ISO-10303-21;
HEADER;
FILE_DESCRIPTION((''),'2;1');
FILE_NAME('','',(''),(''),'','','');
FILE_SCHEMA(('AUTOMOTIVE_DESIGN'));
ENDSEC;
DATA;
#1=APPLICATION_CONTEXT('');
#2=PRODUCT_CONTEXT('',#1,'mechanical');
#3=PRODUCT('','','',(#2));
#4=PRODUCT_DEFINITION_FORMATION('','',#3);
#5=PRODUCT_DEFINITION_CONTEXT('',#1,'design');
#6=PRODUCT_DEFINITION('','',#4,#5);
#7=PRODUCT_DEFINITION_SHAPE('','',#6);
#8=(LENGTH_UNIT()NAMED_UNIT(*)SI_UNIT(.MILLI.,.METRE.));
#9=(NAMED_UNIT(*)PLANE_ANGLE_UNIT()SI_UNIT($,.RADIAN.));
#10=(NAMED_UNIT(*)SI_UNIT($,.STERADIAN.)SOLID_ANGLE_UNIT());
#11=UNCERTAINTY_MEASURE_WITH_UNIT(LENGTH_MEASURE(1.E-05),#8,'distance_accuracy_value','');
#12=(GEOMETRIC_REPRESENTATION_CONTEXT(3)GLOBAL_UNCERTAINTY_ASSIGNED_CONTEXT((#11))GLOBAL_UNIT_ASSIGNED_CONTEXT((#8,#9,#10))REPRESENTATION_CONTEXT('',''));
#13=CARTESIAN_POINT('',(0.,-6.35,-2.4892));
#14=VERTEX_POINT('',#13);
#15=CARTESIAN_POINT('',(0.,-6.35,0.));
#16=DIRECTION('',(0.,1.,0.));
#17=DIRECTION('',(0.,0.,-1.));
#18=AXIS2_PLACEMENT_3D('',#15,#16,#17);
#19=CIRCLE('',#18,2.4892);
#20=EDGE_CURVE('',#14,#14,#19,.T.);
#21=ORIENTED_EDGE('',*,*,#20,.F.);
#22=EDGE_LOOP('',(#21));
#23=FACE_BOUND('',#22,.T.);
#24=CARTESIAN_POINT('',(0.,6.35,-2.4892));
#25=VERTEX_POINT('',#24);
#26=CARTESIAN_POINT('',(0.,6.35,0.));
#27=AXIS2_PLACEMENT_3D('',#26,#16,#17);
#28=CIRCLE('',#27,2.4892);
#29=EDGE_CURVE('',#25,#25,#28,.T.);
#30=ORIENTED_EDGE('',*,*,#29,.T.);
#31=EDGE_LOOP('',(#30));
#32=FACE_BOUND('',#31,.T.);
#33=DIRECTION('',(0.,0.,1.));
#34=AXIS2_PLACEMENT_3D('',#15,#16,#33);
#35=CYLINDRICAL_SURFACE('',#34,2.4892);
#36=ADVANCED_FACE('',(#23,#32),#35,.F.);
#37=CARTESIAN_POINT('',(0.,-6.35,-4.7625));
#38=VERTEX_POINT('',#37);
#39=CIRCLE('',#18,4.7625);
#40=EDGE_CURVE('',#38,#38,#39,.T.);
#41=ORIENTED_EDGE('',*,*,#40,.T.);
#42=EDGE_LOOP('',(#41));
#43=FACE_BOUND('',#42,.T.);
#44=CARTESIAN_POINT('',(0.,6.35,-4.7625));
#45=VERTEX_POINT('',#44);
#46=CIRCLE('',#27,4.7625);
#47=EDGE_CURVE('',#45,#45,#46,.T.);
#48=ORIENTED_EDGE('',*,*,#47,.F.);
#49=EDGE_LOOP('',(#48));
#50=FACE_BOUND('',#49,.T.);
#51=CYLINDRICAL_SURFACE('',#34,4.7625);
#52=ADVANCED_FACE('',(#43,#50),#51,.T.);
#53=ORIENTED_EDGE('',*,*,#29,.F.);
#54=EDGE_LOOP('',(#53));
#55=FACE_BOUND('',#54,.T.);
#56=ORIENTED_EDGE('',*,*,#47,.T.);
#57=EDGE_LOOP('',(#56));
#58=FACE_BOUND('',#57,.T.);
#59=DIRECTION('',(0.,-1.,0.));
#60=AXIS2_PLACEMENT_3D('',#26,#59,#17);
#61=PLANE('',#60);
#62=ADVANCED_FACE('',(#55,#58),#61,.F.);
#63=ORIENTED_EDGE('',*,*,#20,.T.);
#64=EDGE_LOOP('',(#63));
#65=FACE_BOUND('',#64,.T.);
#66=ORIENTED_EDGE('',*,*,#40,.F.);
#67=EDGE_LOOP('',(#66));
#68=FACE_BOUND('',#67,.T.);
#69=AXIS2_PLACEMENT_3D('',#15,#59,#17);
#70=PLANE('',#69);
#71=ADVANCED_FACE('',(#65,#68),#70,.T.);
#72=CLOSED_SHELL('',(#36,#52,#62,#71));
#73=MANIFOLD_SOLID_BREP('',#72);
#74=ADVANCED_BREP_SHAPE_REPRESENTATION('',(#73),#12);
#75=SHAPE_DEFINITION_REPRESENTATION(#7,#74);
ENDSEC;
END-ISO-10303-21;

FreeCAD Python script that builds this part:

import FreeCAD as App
import Part
import Sketcher
from FreeCAD import Vector
Q = App.Units.Quantity

doc = App.newDocument("Part")
body = doc.addObject("PartDesign::Body", "Body")

# Sketch on XZ plane
sketch1 = doc.addObject("Sketcher::SketchObject", "Sketch")
body.addObject(sketch1)
sketch1.AttachmentSupport = (doc.XZ_Plane, [""])
sketch1.MapMode = "FlatFace"
sketch1.addGeometry(Part.Circle(Vector(0, 0, 0), Vector(0, 0, 1), 4.8), False)
sketch1.addGeometry(Part.Circle(Vector(0, 0, 0), Vector(0, 0, 1), 2.5), False)
sketch1.addConstraint(Sketcher.Constraint("Coincident", 0, 3, -1, 1))
sketch1.addConstraint(Sketcher.Constraint("Coincident", 1, 3, -1, 1))
sketch1.addConstraint(Sketcher.Constraint("Diameter", 0, Q("0.375 in")))
sketch1.addConstraint(Sketcher.Constraint("Diameter", 1, Q("0.196 in")))
pad1 = doc.addObject("PartDesign::Pad", "Pad")
body.addObject(pad1)
pad1.Profile = sketch1
pad1.Length = Q("0.5 in")
pad1.Midplane = True

doc.recompute()
